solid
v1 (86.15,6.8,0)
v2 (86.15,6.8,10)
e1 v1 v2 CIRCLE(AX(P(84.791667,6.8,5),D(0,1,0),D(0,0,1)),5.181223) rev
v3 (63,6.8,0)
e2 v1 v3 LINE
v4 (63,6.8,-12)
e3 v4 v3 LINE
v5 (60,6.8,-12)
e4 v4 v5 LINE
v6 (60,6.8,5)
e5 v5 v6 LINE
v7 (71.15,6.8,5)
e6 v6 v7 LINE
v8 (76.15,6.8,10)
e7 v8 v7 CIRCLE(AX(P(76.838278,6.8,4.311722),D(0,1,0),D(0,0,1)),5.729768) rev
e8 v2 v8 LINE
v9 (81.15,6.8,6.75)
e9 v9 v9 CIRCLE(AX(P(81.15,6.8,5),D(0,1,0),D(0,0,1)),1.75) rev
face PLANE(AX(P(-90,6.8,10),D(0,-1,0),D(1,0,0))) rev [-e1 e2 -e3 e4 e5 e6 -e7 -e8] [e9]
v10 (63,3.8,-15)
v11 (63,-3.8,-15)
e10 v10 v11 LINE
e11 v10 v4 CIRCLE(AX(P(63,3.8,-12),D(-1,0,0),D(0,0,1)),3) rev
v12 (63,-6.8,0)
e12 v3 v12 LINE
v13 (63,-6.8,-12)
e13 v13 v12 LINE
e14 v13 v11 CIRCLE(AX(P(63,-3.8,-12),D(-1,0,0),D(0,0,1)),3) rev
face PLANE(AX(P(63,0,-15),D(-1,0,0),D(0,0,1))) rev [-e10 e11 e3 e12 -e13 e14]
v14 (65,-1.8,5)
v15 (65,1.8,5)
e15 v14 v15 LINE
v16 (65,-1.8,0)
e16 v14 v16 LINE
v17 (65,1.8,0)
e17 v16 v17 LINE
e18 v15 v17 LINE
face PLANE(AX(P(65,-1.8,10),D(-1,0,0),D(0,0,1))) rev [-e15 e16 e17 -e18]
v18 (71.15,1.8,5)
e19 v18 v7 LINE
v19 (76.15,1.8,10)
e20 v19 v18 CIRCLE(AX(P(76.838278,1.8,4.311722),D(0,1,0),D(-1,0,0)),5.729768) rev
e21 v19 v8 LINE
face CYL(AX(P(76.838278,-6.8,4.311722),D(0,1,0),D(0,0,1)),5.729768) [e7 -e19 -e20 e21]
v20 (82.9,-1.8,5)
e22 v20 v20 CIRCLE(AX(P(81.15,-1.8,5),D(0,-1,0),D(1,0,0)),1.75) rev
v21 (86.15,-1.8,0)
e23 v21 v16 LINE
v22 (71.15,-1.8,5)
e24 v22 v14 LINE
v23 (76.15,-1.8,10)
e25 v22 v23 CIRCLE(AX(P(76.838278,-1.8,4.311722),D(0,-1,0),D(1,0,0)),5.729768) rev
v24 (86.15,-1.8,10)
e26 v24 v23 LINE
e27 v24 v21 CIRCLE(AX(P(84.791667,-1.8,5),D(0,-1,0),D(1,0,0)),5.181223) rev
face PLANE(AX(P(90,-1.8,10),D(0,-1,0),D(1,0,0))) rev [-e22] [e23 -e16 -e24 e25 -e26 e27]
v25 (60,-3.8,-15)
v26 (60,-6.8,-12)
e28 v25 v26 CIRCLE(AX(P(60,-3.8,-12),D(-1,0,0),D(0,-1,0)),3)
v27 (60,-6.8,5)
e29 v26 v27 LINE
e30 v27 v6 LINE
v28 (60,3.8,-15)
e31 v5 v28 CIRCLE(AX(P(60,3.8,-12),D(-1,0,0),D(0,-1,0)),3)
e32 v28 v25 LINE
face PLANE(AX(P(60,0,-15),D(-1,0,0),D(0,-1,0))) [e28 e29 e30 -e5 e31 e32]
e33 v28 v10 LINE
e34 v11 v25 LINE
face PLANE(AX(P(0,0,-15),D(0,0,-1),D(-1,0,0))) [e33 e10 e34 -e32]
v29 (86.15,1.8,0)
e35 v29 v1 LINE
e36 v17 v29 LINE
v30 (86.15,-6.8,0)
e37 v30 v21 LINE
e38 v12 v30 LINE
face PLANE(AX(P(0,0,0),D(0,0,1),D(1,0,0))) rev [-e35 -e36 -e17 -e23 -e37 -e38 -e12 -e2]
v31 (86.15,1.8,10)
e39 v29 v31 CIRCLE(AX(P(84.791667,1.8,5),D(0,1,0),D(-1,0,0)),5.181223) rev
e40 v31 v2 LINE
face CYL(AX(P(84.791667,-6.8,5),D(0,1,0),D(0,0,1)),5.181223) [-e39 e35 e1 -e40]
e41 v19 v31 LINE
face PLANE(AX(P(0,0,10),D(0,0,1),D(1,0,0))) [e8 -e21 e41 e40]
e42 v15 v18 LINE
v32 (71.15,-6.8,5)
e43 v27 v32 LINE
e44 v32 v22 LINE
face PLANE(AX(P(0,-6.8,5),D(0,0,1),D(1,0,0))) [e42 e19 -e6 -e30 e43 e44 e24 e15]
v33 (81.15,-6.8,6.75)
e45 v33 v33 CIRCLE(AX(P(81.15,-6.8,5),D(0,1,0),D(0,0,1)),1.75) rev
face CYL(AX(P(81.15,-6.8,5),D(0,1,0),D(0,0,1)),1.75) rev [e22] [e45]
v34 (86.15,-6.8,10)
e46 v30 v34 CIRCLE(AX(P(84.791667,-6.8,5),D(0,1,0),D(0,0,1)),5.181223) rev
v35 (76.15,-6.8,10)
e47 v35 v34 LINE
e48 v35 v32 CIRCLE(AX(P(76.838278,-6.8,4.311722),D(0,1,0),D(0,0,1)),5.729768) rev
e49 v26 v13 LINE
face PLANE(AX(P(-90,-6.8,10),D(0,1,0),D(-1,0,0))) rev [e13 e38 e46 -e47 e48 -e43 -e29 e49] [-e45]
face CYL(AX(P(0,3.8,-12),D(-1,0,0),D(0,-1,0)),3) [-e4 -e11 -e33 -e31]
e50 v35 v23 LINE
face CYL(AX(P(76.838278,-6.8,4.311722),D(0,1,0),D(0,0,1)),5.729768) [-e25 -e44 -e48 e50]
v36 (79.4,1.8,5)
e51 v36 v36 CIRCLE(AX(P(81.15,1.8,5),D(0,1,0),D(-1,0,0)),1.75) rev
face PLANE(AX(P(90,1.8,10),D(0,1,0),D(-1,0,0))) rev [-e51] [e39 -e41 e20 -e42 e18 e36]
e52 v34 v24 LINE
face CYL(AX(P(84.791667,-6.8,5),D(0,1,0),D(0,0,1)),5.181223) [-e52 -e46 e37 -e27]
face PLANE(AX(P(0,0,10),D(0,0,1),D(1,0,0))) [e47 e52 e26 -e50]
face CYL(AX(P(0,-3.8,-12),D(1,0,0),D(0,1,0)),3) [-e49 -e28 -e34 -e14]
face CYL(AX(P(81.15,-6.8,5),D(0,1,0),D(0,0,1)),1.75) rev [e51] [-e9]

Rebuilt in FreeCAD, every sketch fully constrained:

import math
import FreeCAD as App
import Part
import Sketcher
from FreeCAD import Vector
Q = App.Units.Quantity


def edges_at(feature, points):
    """Names of the edges that pass closest to the given points."""
    edges = feature.Shape.Edges
    near = lambda p: min(range(len(edges)), key=lambda i: edges[i].distToShape(Part.Vertex(*p))[0])
    return sorted({f"Edge{near(p) + 1}" for p in points})

doc = App.newDocument("Part")
body = doc.addObject("PartDesign::Body", "Body")

sketch1 = body.newObject("Sketcher::SketchObject", "Sketch")
sketch1.AttachmentSupport = (doc.getObject("XY_Plane"), [""])
sketch1.MapMode = "FlatFace"
sketch1.addGeometry([
    Part.LineSegment(Vector(-90, -1.8, 0), Vector(-90, -6.8, 0)),
    Part.LineSegment(Vector(-90, -6.8, 0), Vector(90, -6.8, 0)),
    Part.LineSegment(Vector(90, -6.8, 0), Vector(90, -1.8, 0)),
    Part.LineSegment(Vector(90, -1.8, 0), Vector(65, -1.8, 0)),
    Part.LineSegment(Vector(65, -1.8, 0), Vector(65, 1.8, 0)),
    Part.LineSegment(Vector(65, 1.8, 0), Vector(90, 1.8, 0)),
    Part.LineSegment(Vector(90, 1.8, 0), Vector(90, 6.8, 0)),
    Part.LineSegment(Vector(90, 6.8, 0), Vector(-90, 6.8, 0)),
    Part.LineSegment(Vector(-90, 6.8, 0), Vector(-90, 1.8, 0)),
    Part.LineSegment(Vector(-90, 1.8, 0), Vector(-65, 1.8, 0)),
    Part.LineSegment(Vector(-65, 1.8, 0), Vector(-65, -1.8, 0)),
    Part.LineSegment(Vector(-65, -1.8, 0), Vector(-90, -1.8, 0)),
], False)
sketch1.addConstraint([
    Sketcher.Constraint("Coincident", 0, 2, 1, 1),
    Sketcher.Constraint("Coincident", 1, 2, 2, 1),
    Sketcher.Constraint("Coincident", 2, 2, 3, 1),
    Sketcher.Constraint("Coincident", 3, 2, 4, 1),
    Sketcher.Constraint("Coincident", 4, 2, 5, 1),
    Sketcher.Constraint("Coincident", 5, 2, 6, 1),
    Sketcher.Constraint("Coincident", 6, 2, 7, 1),
    Sketcher.Constraint("Coincident", 7, 2, 8, 1),
    Sketcher.Constraint("Coincident", 8, 2, 9, 1),
    Sketcher.Constraint("Coincident", 9, 2, 10, 1),
    Sketcher.Constraint("Coincident", 10, 2, 11, 1),
    Sketcher.Constraint("Coincident", 11, 2, 0, 1),
    Sketcher.Constraint("Vertical", 0),
    Sketcher.Constraint("Horizontal", 1),
    Sketcher.Constraint("Vertical", 2),
    Sketcher.Constraint("Horizontal", 3),
    Sketcher.Constraint("Vertical", 4),
    Sketcher.Constraint("Horizontal", 5),
    Sketcher.Constraint("Vertical", 6),
    Sketcher.Constraint("Horizontal", 7),
    Sketcher.Constraint("Vertical", 8),
    Sketcher.Constraint("Horizontal", 9),
    Sketcher.Constraint("Vertical", 10),
    Sketcher.Constraint("Horizontal", 11),
    Sketcher.Constraint("Symmetric", 0, 2, 6, 2, -1, 1),
    Sketcher.Constraint("Symmetric", 2, 2, 8, 2, -1, 1),
    Sketcher.Constraint("Symmetric", 4, 2, 10, 2, -1, 1),
    Sketcher.Constraint("Symmetric", 5, 2, 8, 2, -2),
    Sketcher.Constraint("DistanceX", 1, 1, 1, 2, Q("180 mm")),
    Sketcher.Constraint("DistanceX", 3, 2, 3, 1, Q("25 mm")),
    Sketcher.Constraint("DistanceY", 0, 2, 0, 1, Q("5 mm")),
    Sketcher.Constraint("DistanceY", 4, 1, 4, 2, Q("3.6 mm")),
])
pad1 = body.newObject("PartDesign::Pad", "Pad")
pad1.Profile = sketch1
pad1.Length = 10

sketch2 = body.newObject("Sketcher::SketchObject", "Sketch001")
sketch2.AttachmentSupport = (doc.getObject("XZ_Plane"), [""])
sketch2.MapMode = "FlatFace"
sketch2.AttachmentOffset = App.Placement(Vector(0, 0, -6.8), App.Rotation())
sketch2.addGeometry([
    Part.ArcOfCircle(Part.Circle(Vector(-84.8, 5, 0), Vector(0, 0, 1), 5.2), math.radians(105), math.radians(255)),
    Part.LineSegment(Vector(-86.2, 0, 0), Vector(-90, 0, 0)),
    Part.LineSegment(Vector(-90, 0, 0), Vector(-90, 10, 0)),
    Part.LineSegment(Vector(-90, 10, 0), Vector(-86.2, 10, 0)),
    Part.LineSegment(Vector(86.2, 10, 0), Vector(90, 10, 0)),
    Part.LineSegment(Vector(90, 10, 0), Vector(90, 0, 0)),
    Part.LineSegment(Vector(90, 0, 0), Vector(86.2, 0, 0)),
    Part.ArcOfCircle(Part.Circle(Vector(84.8, 5, 0), Vector(0, 0, 1), 5.2), math.radians(-75), math.radians(75)),
    Part.LineSegment(Vector(71.2, 5, 0), Vector(-71.2, 5, 0)),
    Part.ArcOfCircle(Part.Circle(Vector(-76.8, 4.3, 0), Vector(0, 0, 1), 5.7), math.radians(7), math.radians(83)),
    Part.LineSegment(Vector(-76.2, 10, 0), Vector(76.2, 10, 0)),
    Part.ArcOfCircle(Part.Circle(Vector(76.8, 4.3, 0), Vector(0, 0, 1), 5.7), math.radians(97), math.radians(173)),
    Part.Circle(Vector(81.2, 5, 0), Vector(0, 0, 1), 1.8),
], False)
sketch2.addConstraint([
    Sketcher.Constraint("Coincident", 0, 2, 1, 1),
    Sketcher.Constraint("Coincident", 1, 2, 2, 1),
    Sketcher.Constraint("Coincident", 2, 2, 3, 1),
    Sketcher.Constraint("Coincident", 3, 2, 0, 1),
    Sketcher.Constraint("Coincident", 4, 2, 5, 1),
    Sketcher.Constraint("Coincident", 5, 2, 6, 1),
    Sketcher.Constraint("Coincident", 6, 2, 7, 1),
    Sketcher.Constraint("Coincident", 7, 2, 4, 1),
    Sketcher.Constraint("Coincident", 8, 2, 9, 1),
    Sketcher.Constraint("Coincident", 9, 2, 10, 1),
    Sketcher.Constraint("Coincident", 10, 2, 11, 1),
    Sketcher.Constraint("Coincident", 11, 2, 8, 1),
    Sketcher.Constraint("Horizontal", 1),
    Sketcher.Constraint("Vertical", 2),
    Sketcher.Constraint("Horizontal", 3),
    Sketcher.Constraint("Horizontal", 4),
    Sketcher.Constraint("Vertical", 5),
    Sketcher.Constraint("Horizontal", 6),
    Sketcher.Constraint("Horizontal", 8),
    Sketcher.Constraint("Horizontal", 10),
    Sketcher.Constraint("Equal", 0, 7),
    Sketcher.Constraint("Equal", 9, 11),
    Sketcher.Constraint("Symmetric", 1, 2, 5, 2, -1, 1),
    Sketcher.Constraint("Symmetric", 0, 3, 7, 3, -2),
    Sketcher.Constraint("Symmetric", 9, 3, 11, 3, -2),
    Sketcher.Constraint("PointOnObject", 0, 2, -1),
    Sketcher.Constraint("Horizontal", 7, 3, 12, 3),
    Sketcher.Constraint("Horizontal", 3, 2, 4, 2),
    Sketcher.Constraint("Horizontal", 12, 3, 8, 2),
    Sketcher.Constraint("Horizontal", 7, 2, 9, 2),
    Sketcher.Constraint("Vertical", 0, 2, 3, 2),
    Sketcher.Constraint("Diameter", 12, Q("3.5 mm")),
    Sketcher.Constraint("DistanceY", 2, 1, 2, 2, Q("10 mm")),
    Sketcher.Constraint("DistanceX", 8, 2, 8, 1, Q("142.3 mm")),
    Sketcher.Constraint("DistanceX", 10, 1, 10, 2, Q("152.3 mm")),
    Sketcher.Constraint("DistanceX", 1, 2, -1, 1, Q("90 mm")),
    Sketcher.Constraint("DistanceX", 12, 3, 6, 2, Q("5 mm")),
    Sketcher.Constraint("DistanceX", 3, 2, 8, 2, Q("15 mm")),
    Sketcher.Constraint("Radius", 0, Q("5.181223 mm")),
    Sketcher.Constraint("Radius", 9, Q("5.729768 mm")),
])
pocket1 = body.newObject("PartDesign::Pocket", "Pocket")
pocket1.Profile = sketch2
pocket1.Type = "ThroughAll"
pocket1.Reversed = True

sketch3 = body.newObject("Sketcher::SketchObject", "Sketch002")
sketch3.AttachmentSupport = (doc.getObject("XY_Plane"), [""])
sketch3.MapMode = "FlatFace"
sketch3.addGeometry([
    Part.LineSegment(Vector(63, 6.8, 0), Vector(63, -6.8, 0)),
    Part.LineSegment(Vector(63, -6.8, 0), Vector(60, -6.8, 0)),
    Part.LineSegment(Vector(60, -6.8, 0), Vector(60, 6.8, 0)),
    Part.LineSegment(Vector(60, 6.8, 0), Vector(63, 6.8, 0)),
    Part.LineSegment(Vector(-60, 6.8, 0), Vector(-60, -6.8, 0)),
    Part.LineSegment(Vector(-60, -6.8, 0), Vector(-63, -6.8, 0)),
    Part.LineSegment(Vector(-63, -6.8, 0), Vector(-63, 6.8, 0)),
    Part.LineSegment(Vector(-63, 6.8, 0), Vector(-60, 6.8, 0)),
], False)
sketch3.addConstraint([
    Sketcher.Constraint("Coincident", 0, 2, 1, 1),
    Sketcher.Constraint("Coincident", 1, 2, 2, 1),
    Sketcher.Constraint("Coincident", 2, 2, 3, 1),
    Sketcher.Constraint("Coincident", 3, 2, 0, 1),
    Sketcher.Constraint("Coincident", 4, 2, 5, 1),
    Sketcher.Constraint("Coincident", 5, 2, 6, 1),
    Sketcher.Constraint("Coincident", 6, 2, 7, 1),
    Sketcher.Constraint("Coincident", 7, 2, 4, 1),
    Sketcher.Constraint("Vertical", 0),
    Sketcher.Constraint("Horizontal", 1),
    Sketcher.Constraint("Vertical", 2),
    Sketcher.Constraint("Horizontal", 3),
    Sketcher.Constraint("Vertical", 4),
    Sketcher.Constraint("Horizontal", 5),
    Sketcher.Constraint("Vertical", 6),
    Sketcher.Constraint("Horizontal", 7),
    Sketcher.Constraint("Symmetric", 2, 2, 4, 2, -1, 1),
    Sketcher.Constraint("Symmetric", 0, 2, 6, 2, -1, 1),
    Sketcher.Constraint("Horizontal", 1, 2, 4, 2),
    Sketcher.Constraint("DistanceX", 1, 2, 1, 1, Q("3 mm")),
    Sketcher.Constraint("DistanceY", 0, 2, 0, 1, Q("13.6 mm")),
    Sketcher.Constraint("DistanceX", -1, 1, 0, 2, Q("63 mm")),
])
pad2 = body.newObject("PartDesign::Pad", "Pad001")
pad2.Profile = sketch3
pad2.Length = 15
pad2.Reversed = True
doc.recompute()

chamfer = body.newObject("PartDesign::Chamfer", "Chamfer")
chamfer.Base = (pad2, edges_at(pad2, [(0, -6.8, 0)]))
chamfer.ChamferType = "Two distances"
chamfer.Size = 10
chamfer.Size2 = 2.679492
doc.recompute()

fillet = body.newObject("PartDesign::Fillet", "Fillet")
fillet.Base = (chamfer, edges_at(chamfer, [
    (61.5, 6.8, -15),
    (61.5, -6.8, -15),
    (-61.5, 6.8, -15),
    (-61.5, -6.8, -15),
]))
fillet.Radius = 3

sketch4 = body.newObject("Sketcher::SketchObject", "Sketch003")
sketch4.AttachmentSupport = (doc.getObject("XZ_Plane"), [""])
sketch4.MapMode = "FlatFace"
sketch4.AttachmentOffset = App.Placement(Vector(0, 0, 6.8), App.Rotation())
sketch4.addGeometry([
    Part.LineSegment(Vector(60, -23, 0), Vector(60, 24, 0)),
    Part.LineSegment(Vector(60, 24, 0), Vector(-107, 24, 0)),
    Part.LineSegment(Vector(-107, 24, 0), Vector(-107, -23, 0)),
    Part.LineSegment(Vector(-107, -23, 0), Vector(60, -23, 0)),
], False)
sketch4.addConstraint([
    Sketcher.Constraint("Coincident", 0, 2, 1, 1),
    Sketcher.Constraint("Coincident", 1, 2, 2, 1),
    Sketcher.Constraint("Coincident", 2, 2, 3, 1),
    Sketcher.Constraint("Coincident", 3, 2, 0, 1),
    Sketcher.Constraint("Vertical", 0),
    Sketcher.Constraint("Horizontal", 1),
    Sketcher.Constraint("Vertical", 2),
    Sketcher.Constraint("Horizontal", 3),
    Sketcher.Constraint("DistanceX", -1, 1, 0, 2, Q("60 mm")),
    Sketcher.Constraint("DistanceX", 1, 2, 1, 1, Q("166.722641 mm")),
    Sketcher.Constraint("DistanceY", 0, 1, 0, 2, Q("47.037937 mm")),
    Sketcher.Constraint("DistanceY", -1, 1, 0, 2, Q("24.335783 mm")),
])
pocket2 = body.newObject("PartDesign::Pocket", "Pocket001")
pocket2.Profile = sketch4
pocket2.Type = "ThroughAll"

doc.recompute()
